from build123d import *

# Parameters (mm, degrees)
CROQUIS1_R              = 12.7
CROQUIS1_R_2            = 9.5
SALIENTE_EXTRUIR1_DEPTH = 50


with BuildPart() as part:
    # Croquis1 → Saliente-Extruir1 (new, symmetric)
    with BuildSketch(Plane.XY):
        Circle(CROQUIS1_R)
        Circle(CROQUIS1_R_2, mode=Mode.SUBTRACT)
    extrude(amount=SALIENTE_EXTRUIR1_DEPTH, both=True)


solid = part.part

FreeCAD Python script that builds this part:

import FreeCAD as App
import Part
import Sketcher

V = App.Vector
Q = App.Units.Quantity

doc = App.newDocument("Part")
body = doc.addObject("PartDesign::Body", "Body")

sketch1 = doc.addObject("Sketcher::SketchObject", "Sketch")
body.addObject(sketch1)
sketch1.AttachmentSupport = (doc.XY_Plane, [""])
sketch1.MapMode = "FlatFace"
sketch1.addGeometry(Part.Circle(V(0, 0, 0), V(0, 0, 1), 12.7), False)
sketch1.addGeometry(Part.Circle(V(0, 0, 0), V(0, 0, 1), 9.5), False)
sketch1.addConstraint(Sketcher.Constraint("Coincident", 0, 3, -1, 1))
sketch1.addConstraint(Sketcher.Constraint("Coincident", 1, 3, -1, 1))
sketch1.addConstraint(Sketcher.Constraint("Diameter", 1, Q("19 mm")))
sketch1.addConstraint(Sketcher.Constraint("Diameter", 0, Q("25.4 mm")))
pad1 = doc.addObject("PartDesign::Pad", "Pad")
body.addObject(pad1)
pad1.Profile = sketch1
pad1.Length = 100
pad1.Midplane = True

doc.recompute()
